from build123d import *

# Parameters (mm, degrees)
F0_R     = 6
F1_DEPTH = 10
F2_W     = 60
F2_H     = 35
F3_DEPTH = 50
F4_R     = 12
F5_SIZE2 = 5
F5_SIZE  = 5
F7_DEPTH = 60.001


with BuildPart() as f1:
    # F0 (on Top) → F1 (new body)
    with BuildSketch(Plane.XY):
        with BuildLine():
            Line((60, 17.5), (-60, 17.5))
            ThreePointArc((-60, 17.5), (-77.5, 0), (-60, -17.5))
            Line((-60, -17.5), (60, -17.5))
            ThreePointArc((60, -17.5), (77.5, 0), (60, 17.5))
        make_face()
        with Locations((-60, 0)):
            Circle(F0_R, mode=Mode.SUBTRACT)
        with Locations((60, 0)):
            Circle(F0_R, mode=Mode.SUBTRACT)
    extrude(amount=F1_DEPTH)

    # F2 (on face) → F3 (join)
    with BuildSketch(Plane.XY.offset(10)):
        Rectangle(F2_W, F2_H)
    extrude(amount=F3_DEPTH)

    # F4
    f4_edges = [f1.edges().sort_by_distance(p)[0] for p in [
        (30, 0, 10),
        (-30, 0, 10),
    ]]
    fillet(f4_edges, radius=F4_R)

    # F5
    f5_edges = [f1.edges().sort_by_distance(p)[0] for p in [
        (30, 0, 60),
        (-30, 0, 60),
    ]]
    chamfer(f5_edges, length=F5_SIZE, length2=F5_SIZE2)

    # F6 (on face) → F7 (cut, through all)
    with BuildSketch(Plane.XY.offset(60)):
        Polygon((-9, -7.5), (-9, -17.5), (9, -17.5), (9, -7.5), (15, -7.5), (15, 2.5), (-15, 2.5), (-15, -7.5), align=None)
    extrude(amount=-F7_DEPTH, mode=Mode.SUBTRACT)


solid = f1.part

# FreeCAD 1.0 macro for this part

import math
import FreeCAD as App
import Part
import Sketcher
from FreeCAD import Vector
Q = App.Units.Quantity


def edges_at(feature, points):
    """Names of the edges that pass closest to the given points."""
    edges = feature.Shape.Edges
    near = lambda p: min(range(len(edges)), key=lambda i: edges[i].distToShape(Part.Vertex(*p))[0])
    return sorted({f"Edge{near(p) + 1}" for p in points})


def add_polygon(sketch, points):
    """Adds a closed chain of lines whose ends are joined by coincident constraints."""
    first, n = sketch.GeometryCount, len(points)
    for a, b in zip(points, points[1:] + points[:1]):
        sketch.addGeometry(Part.LineSegment(App.Vector(*a, 0), App.Vector(*b, 0)), False)
    for i in range(n):
        sketch.addConstraint(Sketcher.Constraint("Coincident", first + i, 2, first + (i + 1) % n, 1))

doc = App.newDocument("Part")
params = doc.addObject("Spreadsheet::Sheet", "Params")
for row, (alias, value) in enumerate([
    ("sketch1_diameter", "12 mm"),
    ("sketch1_radius", "17.5 mm"),
    ("sketch1_width", "120 mm"),
    ("pad1_length", "10 mm"),
    ("sketch2_width", "60 mm"),
    ("sketch2_height", "35 mm"),
    ("pad2_length", "50 mm"),
    ("fillet_radius", "12 mm"),
    ("chamfer_size", "5 mm"),
    ("chamfer_size2", "5 mm"),
    ("sketch3_width", "18 mm"),
    ("sketch3_width2", "6 mm"),
    ("sketch3_height", "10 mm"),
], start=1):
    params.set(f"A{row}", alias)
    params.set(f"B{row}", "=" + value)
    params.setAlias(f"B{row}", alias)

body = doc.addObject("PartDesign::Body", "Body")

sketch1 = body.newObject("Sketcher::SketchObject", "Sketch")
sketch1.AttachmentSupport = (doc.getObject("XY_Plane"), [""])
sketch1.MapMode = "FlatFace"
sketch1.addGeometry([
    Part.LineSegment(Vector(60, 18, 0), Vector(-60, 18, 0)),
    Part.ArcOfCircle(Part.Circle(Vector(-60, 0, 0), Vector(0, 0, 1), 18), math.radians(90), math.radians(270)),
    Part.LineSegment(Vector(-60, -18, 0), Vector(60, -18, 0)),
    Part.ArcOfCircle(Part.Circle(Vector(60, 0, 0), Vector(0, 0, 1), 18), math.radians(-90), math.radians(90)),
    Part.Circle(Vector(-60, 0, 0), Vector(0, 0, 1), 6),
    Part.Circle(Vector(60, 0, 0), Vector(0, 0, 1), 6),
], False)
sketch1.addConstraint([
    Sketcher.Constraint("Tangent", 0, 2, 1, 1),
    Sketcher.Constraint("Tangent", 1, 2, 2, 1),
    Sketcher.Constraint("Tangent", 2, 2, 3, 1),
    Sketcher.Constraint("Tangent", 3, 2, 0, 1),
    Sketcher.Constraint("Horizontal", 0),
    Sketcher.Constraint("Horizontal", 2),
    Sketcher.Constraint("Coincident", 4, 3, 1, 3),
    Sketcher.Constraint("Coincident", 5, 3, 3, 3),
    Sketcher.Constraint("Equal", 4, 5),
    Sketcher.Constraint("Symmetric", 1, 3, 3, 3, -1, 1),
    Sketcher.Constraint("Diameter", 4, Q("12 mm")),
    Sketcher.Constraint("Radius", 1, Q("17.5 mm")),
    Sketcher.Constraint("DistanceX", 0, 2, 0, 1, Q("120 mm")),
])
sketch1.setExpression("Constraints[10]", "Params.sketch1_diameter")
sketch1.setExpression("Constraints[11]", "Params.sketch1_radius")
sketch1.setExpression("Constraints[12]", "Params.sketch1_width")
pad1 = body.newObject("PartDesign::Pad", "Pad")
pad1.Profile = sketch1
pad1.setExpression("Length", "Params.pad1_length")

sketch2 = body.newObject("Sketcher::SketchObject", "Sketch001")
sketch2.AttachmentSupport = (doc.getObject("XY_Plane"), [""])
sketch2.MapMode = "FlatFace"
sketch2.AttachmentOffset = App.Placement(Vector(0, 0, 10), App.Rotation())
add_polygon(sketch2, [(-30, 18), (-30, -18), (30, -18), (30, 18)])
sketch2.addConstraint([
    Sketcher.Constraint("Vertical", 0),
    Sketcher.Constraint("Horizontal", 1),
    Sketcher.Constraint("Vertical", 2),
    Sketcher.Constraint("Horizontal", 3),
    Sketcher.Constraint("Symmetric", 0, 2, 2, 2, -1, 1),
    Sketcher.Constraint("DistanceX", 1, 1, 1, 2, Q("60 mm")),
    Sketcher.Constraint("DistanceY", 0, 2, 0, 1, Q("35 mm")),
])
sketch2.setExpression("Constraints[9]", "Params.sketch2_width")
sketch2.setExpression("Constraints[10]", "Params.sketch2_height")
pad2 = body.newObject("PartDesign::Pad", "Pad001")
pad2.Profile = sketch2
pad2.setExpression("Length", "Params.pad2_length")
doc.recompute()

fillet = body.newObject("PartDesign::Fillet", "Fillet")
fillet.Base = (pad2, edges_at(pad2, [(30, 0, 10), (-30, 0, 10)]))
fillet.setExpression("Radius", "Params.fillet_radius")
doc.recompute()

chamfer = body.newObject("PartDesign::Chamfer", "Chamfer")
chamfer.Base = (fillet, edges_at(fillet, [(30, 0, 60), (-30, 0, 60)]))
chamfer.ChamferType = "Two distances"
chamfer.setExpression("Size", "Params.chamfer_size")
chamfer.setExpression("Size2", "Params.chamfer_size2")

sketch3 = body.newObject("Sketcher::SketchObject", "Sketch002")
sketch3.AttachmentSupport = (doc.getObject("XY_Plane"), [""])
sketch3.MapMode = "FlatFace"
sketch3.AttachmentOffset = App.Placement(Vector(0, 0, 60), App.Rotation())
add_polygon(sketch3, [(-9, -8), (-9, -18), (9, -18), (9, -8), (15, -8), (15, 2), (-15, 2), (-15, -8)])
sketch3.addConstraint([
    Sketcher.Constraint("Vertical", 0),
    Sketcher.Constraint("Horizontal", 1),
    Sketcher.Constraint("Vertical", 2),
    Sketcher.Constraint("Horizontal", 3),
    Sketcher.Constraint("Vertical", 4),
    Sketcher.Constraint("Horizontal", 5),
    Sketcher.Constraint("Vertical", 6),
    Sketcher.Constraint("Horizontal", 7),
    Sketcher.Constraint("Symmetric", 3, 2, 6, 2, -2),
    Sketcher.Constraint("Equal", 3, 7),
    Sketcher.Constraint("Equal", 2, 4),
    Sketcher.Constraint("DistanceX", 1, 1, 1, 2, Q("18 mm")),
    Sketcher.Constraint("DistanceX", 3, 1, 3, 2, Q("6 mm")),
    Sketcher.Constraint("DistanceY", 0, 2, 0, 1, Q("10 mm")),
    Sketcher.Constraint("DistanceY", 0, 2, -1, 1, Q("17.5 mm")),
])
sketch3.setExpression("Constraints[19]", "Params.sketch3_width")
sketch3.setExpression("Constraints[20]", "Params.sketch3_width2")
sketch3.setExpression("Constraints[21]", "Params.sketch3_height")
pocket1 = body.newObject("PartDesign::Pocket", "Pocket")
pocket1.Profile = sketch3
pocket1.Type = "ThroughAll"

doc.recompute()
